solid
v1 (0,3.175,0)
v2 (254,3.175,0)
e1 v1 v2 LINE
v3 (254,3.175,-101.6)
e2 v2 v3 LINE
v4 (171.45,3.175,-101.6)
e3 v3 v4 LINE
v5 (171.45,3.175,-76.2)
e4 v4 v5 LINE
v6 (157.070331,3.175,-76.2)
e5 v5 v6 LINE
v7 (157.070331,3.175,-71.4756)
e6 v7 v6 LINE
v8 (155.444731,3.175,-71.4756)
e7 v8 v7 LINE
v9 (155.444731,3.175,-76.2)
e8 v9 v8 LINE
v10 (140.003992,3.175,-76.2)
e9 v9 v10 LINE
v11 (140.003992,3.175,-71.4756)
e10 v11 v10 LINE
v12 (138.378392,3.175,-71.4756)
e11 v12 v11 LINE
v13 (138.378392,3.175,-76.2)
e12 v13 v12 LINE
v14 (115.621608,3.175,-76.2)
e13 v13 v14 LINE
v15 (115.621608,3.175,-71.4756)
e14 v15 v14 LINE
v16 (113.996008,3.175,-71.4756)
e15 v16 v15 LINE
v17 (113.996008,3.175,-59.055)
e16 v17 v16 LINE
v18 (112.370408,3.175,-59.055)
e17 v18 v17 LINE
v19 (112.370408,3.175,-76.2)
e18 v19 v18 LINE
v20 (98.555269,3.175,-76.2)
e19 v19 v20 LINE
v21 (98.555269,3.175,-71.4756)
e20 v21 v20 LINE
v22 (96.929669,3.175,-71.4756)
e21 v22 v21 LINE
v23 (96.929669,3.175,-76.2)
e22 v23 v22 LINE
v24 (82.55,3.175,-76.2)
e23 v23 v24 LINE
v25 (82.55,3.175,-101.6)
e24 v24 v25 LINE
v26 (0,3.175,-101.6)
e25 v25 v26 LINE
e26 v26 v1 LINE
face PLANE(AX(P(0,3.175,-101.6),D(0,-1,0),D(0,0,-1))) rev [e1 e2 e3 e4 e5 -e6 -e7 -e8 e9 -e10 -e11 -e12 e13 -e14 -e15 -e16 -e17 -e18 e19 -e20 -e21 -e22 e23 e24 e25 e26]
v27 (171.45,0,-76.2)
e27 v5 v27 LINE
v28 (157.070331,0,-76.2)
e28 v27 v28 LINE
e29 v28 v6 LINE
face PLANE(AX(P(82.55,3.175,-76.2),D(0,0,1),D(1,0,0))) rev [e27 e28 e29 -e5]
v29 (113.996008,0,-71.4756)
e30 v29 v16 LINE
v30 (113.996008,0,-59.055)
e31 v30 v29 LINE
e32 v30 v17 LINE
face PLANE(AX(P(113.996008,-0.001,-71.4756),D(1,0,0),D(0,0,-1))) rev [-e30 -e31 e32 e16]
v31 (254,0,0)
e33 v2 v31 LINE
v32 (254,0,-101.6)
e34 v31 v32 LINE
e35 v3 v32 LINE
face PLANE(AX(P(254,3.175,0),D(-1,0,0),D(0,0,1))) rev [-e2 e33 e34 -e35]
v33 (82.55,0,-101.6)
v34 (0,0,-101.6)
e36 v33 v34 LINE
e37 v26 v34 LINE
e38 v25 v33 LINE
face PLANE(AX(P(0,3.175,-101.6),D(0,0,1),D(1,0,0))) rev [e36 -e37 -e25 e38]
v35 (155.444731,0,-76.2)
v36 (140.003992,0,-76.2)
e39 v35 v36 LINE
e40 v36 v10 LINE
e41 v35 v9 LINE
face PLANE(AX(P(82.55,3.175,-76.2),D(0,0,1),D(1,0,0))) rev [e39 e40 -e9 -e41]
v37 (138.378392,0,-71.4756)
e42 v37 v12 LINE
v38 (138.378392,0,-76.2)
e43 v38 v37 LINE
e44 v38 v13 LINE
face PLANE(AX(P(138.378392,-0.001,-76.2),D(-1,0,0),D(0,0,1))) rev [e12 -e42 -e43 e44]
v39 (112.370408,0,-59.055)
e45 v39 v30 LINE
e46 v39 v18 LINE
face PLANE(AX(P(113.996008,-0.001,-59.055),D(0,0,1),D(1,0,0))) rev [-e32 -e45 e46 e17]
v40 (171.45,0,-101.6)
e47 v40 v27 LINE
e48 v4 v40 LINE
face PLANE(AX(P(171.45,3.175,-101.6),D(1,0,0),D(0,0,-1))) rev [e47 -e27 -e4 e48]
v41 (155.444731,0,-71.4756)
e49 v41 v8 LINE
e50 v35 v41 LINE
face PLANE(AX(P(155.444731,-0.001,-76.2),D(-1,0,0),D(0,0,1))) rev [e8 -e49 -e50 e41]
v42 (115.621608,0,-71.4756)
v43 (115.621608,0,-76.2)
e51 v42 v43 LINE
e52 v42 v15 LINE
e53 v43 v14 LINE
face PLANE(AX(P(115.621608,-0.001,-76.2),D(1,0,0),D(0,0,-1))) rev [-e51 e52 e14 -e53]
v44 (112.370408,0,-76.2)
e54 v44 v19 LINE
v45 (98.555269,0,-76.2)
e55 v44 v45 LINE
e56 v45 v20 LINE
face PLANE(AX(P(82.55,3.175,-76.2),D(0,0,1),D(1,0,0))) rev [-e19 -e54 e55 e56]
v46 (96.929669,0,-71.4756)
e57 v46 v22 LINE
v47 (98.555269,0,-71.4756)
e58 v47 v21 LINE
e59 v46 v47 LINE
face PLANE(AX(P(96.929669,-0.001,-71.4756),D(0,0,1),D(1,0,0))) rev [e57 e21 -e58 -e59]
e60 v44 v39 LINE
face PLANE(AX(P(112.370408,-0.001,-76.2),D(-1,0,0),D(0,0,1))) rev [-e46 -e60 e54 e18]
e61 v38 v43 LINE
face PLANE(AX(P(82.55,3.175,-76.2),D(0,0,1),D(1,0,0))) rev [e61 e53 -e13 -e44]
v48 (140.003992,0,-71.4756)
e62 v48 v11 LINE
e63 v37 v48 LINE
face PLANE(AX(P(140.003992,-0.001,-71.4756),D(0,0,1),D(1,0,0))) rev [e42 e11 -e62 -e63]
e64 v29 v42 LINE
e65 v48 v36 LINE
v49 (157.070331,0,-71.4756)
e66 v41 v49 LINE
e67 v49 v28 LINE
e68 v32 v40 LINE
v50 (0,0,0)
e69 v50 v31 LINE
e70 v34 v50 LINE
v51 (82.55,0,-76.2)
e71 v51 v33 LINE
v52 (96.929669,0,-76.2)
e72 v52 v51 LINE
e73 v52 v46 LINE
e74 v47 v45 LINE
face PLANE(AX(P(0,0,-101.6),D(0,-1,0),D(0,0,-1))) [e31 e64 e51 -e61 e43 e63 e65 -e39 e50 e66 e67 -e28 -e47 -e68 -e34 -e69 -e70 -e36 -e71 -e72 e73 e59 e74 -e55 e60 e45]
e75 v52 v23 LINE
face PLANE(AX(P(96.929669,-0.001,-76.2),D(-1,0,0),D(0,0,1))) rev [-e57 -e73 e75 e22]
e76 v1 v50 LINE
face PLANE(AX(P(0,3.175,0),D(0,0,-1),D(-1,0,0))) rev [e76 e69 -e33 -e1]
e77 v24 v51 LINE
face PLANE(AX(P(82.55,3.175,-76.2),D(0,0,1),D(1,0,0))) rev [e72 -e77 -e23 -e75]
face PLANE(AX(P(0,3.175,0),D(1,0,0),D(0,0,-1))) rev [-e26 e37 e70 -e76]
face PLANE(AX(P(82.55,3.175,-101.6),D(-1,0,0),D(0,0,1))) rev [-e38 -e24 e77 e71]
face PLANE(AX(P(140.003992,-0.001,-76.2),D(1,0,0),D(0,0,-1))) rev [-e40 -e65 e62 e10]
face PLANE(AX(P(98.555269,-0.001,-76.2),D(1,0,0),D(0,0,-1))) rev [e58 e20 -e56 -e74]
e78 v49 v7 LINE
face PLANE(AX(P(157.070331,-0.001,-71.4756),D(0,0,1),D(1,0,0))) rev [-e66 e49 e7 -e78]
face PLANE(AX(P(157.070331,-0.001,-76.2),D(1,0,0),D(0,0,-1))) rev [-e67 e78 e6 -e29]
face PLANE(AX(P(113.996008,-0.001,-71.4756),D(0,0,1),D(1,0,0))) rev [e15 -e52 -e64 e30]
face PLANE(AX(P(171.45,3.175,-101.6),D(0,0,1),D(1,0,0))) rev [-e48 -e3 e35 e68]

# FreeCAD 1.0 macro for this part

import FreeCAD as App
import Part
import Sketcher

V = App.Vector
Q = App.Units.Quantity


def add_polygon(sketch, points):
    """Adds a closed chain of lines whose ends are joined by coincident constraints."""
    first, n = sketch.GeometryCount, len(points)
    for a, b in zip(points, points[1:] + points[:1]):
        sketch.addGeometry(Part.LineSegment(App.Vector(*a, 0), App.Vector(*b, 0)), False)
    for i in range(n):
        sketch.addConstraint(Sketcher.Constraint("Coincident", first + i, 2, first + (i + 1) % n, 1))

doc = App.newDocument("Part")
body = doc.addObject("PartDesign::Body", "Body")

# Sketch on XZ plane
sketch1 = body.newObject("Sketcher::SketchObject", "Sketch")
sketch1.AttachmentSupport = (doc.getObject("XZ_Plane"), [""])
sketch1.MapMode = "FlatFace"
add_polygon(sketch1, [(254, -101.6), (171.45, -101.6), (171.45, -76.2), (82.55, -76.2), (82.55, -101.6), (0, -101.6), (0, 0), (254, 0)])  # lines 0-7
sketch1.addConstraint(Sketcher.Constraint("Horizontal", 0))
sketch1.addConstraint(Sketcher.Constraint("Vertical", 1))
sketch1.addConstraint(Sketcher.Constraint("Horizontal", 2))
sketch1.addConstraint(Sketcher.Constraint("Vertical", 3))
sketch1.addConstraint(Sketcher.Constraint("Horizontal", 4))
sketch1.addConstraint(Sketcher.Constraint("Vertical", 5))
sketch1.addConstraint(Sketcher.Constraint("Horizontal", 6))
sketch1.addConstraint(Sketcher.Constraint("Vertical", 7))
sketch1.addConstraint(Sketcher.Constraint("Coincident", 5, 2, -1, 1))
sketch1.addConstraint(Sketcher.Constraint("Horizontal", 0, 2, 3, 2))
sketch1.addConstraint(Sketcher.Constraint("Equal", 0, 4))
sketch1.addConstraint(Sketcher.Constraint("DistanceX", 6, 1, 6, 2, Q("10 in")))
sketch1.addConstraint(Sketcher.Constraint("DistanceY", 1, 1, 1, 2, Q("1 in")))
sketch1.addConstraint(Sketcher.Constraint("DistanceY", 5, 1, 5, 2, Q("4 in")))
sketch1.addConstraint(Sketcher.Constraint("DistanceX", 2, 2, 2, 1, Q("3.5 in")))
pad1 = body.newObject("PartDesign::Pad", "Pad")
pad1.Profile = sketch1
pad1.Length = Q("0.125 in")
pad1.Reversed = True

# Sketch on XZ plane
sketch2 = body.newObject("Sketcher::SketchObject", "Sketch001")
sketch2.AttachmentSupport = (doc.getObject("XZ_Plane"), [""])
sketch2.MapMode = "FlatFace"
sketch2.AttachmentOffset = App.Placement(V(0, 0, -0.125 * 25.4), App.Rotation())
add_polygon(sketch2, [(98.555269, -71.4756), (98.555269, -76.2), (96.929669, -76.2), (96.929669, -71.4756)])  # lines 0-3
sketch2.addConstraint(Sketcher.Constraint("Vertical", 0))
sketch2.addConstraint(Sketcher.Constraint("Horizontal", 1))
sketch2.addConstraint(Sketcher.Constraint("Vertical", 2))
sketch2.addConstraint(Sketcher.Constraint("Horizontal", 3))
sketch2.addConstraint(Sketcher.Constraint("DistanceY", 0, 2, -1, 1, Q("3 in")))
sketch2.addConstraint(Sketcher.Constraint("DistanceX", 1, 2, 1, 1, Q("0.064 in")))
sketch2.addConstraint(Sketcher.Constraint("DistanceY", 0, 2, 0, 1, Q("0.186 in")))
sketch2.addConstraint(Sketcher.Constraint("DistanceX", -1, 1, 0, 2, Q("98.555269 mm")))
pocket1 = body.newObject("PartDesign::Pocket", "Pocket")
pocket1.Profile = sketch2
pocket1.Type = "UpToFirst"
pocket1.Reversed = True

# Sketch on XZ plane
sketch3 = body.newObject("Sketcher::SketchObject", "Sketch002")
sketch3.AttachmentSupport = (doc.getObject("XZ_Plane"), [""])
sketch3.MapMode = "FlatFace"
sketch3.AttachmentOffset = App.Placement(V(0, 0, -0.125 * 25.4), App.Rotation())
add_polygon(sketch3, [(115.621608, -76.2), (112.370408, -76.2), (112.370408, -59.055), (113.996008, -59.055), (113.996008, -71.4756), (115.621608, -71.4756)])  # lines 0-5
sketch3.addConstraint(Sketcher.Constraint("Horizontal", 0))
sketch3.addConstraint(Sketcher.Constraint("Vertical", 1))
sketch3.addConstraint(Sketcher.Constraint("Horizontal", 2))
sketch3.addConstraint(Sketcher.Constraint("Vertical", 3))
sketch3.addConstraint(Sketcher.Constraint("Horizontal", 4))
sketch3.addConstraint(Sketcher.Constraint("Vertical", 5))
sketch3.addConstraint(Sketcher.Constraint("Equal", 2, 4))
sketch3.addConstraint(Sketcher.Constraint("DistanceY", 0, 2, -1, 1, Q("3 in")))
sketch3.addConstraint(Sketcher.Constraint("DistanceX", 0, 2, 0, 1, Q("0.128 in")))
sketch3.addConstraint(Sketcher.Constraint("DistanceY", 1, 1, 1, 2, Q("0.675 in")))
sketch3.addConstraint(Sketcher.Constraint("DistanceY", 3, 2, 3, 1, Q("0.489 in")))
sketch3.addConstraint(Sketcher.Constraint("DistanceX", -1, 1, 0, 2, Q("112.370408 mm")))
pocket2 = body.newObject("PartDesign::Pocket", "Pocket001")
pocket2.Profile = sketch3
pocket2.Type = "UpToFirst"
pocket2.Reversed = True

# Sketch on XZ plane
sketch4 = body.newObject("Sketcher::SketchObject", "Sketch003")
sketch4.AttachmentSupport = (doc.getObject("XZ_Plane"), [""])
sketch4.MapMode = "FlatFace"
sketch4.AttachmentOffset = App.Placement(V(0, 0, -0.125 * 25.4), App.Rotation())
add_polygon(sketch4, [(140.003992, -71.4756), (140.003992, -76.2), (138.378392, -76.2), (138.378392, -71.4756)])  # lines 0-3
sketch4.addConstraint(Sketcher.Constraint("Vertical", 0))
sketch4.addConstraint(Sketcher.Constraint("Horizontal", 1))
sketch4.addConstraint(Sketcher.Constraint("Vertical", 2))
sketch4.addConstraint(Sketcher.Constraint("Horizontal", 3))
sketch4.addConstraint(Sketcher.Constraint("DistanceY", 0, 2, -1, 1, Q("3 in")))
sketch4.addConstraint(Sketcher.Constraint("DistanceX", 1, 2, 1, 1, Q("0.064 in")))
sketch4.addConstraint(Sketcher.Constraint("DistanceY", 0, 2, 0, 1, Q("0.186 in")))
sketch4.addConstraint(Sketcher.Constraint("DistanceX", -1, 1, 0, 2, Q("140.003992 mm")))
pocket3 = body.newObject("PartDesign::Pocket", "Pocket002")
pocket3.Profile = sketch4
pocket3.Type = "UpToFirst"
pocket3.Reversed = True

# Sketch on XZ plane
sketch5 = body.newObject("Sketcher::SketchObject", "Sketch004")
sketch5.AttachmentSupport = (doc.getObject("XZ_Plane"), [""])
sketch5.MapMode = "FlatFace"
sketch5.AttachmentOffset = App.Placement(V(0, 0, -0.125 * 25.4), App.Rotation())
add_polygon(sketch5, [(157.070331, -71.4756), (157.070331, -76.2), (155.444731, -76.2), (155.444731, -71.4756)])  # lines 0-3
sketch5.addConstraint(Sketcher.Constraint("Vertical", 0))
sketch5.addConstraint(Sketcher.Constraint("Horizontal", 1))
sketch5.addConstraint(Sketcher.Constraint("Vertical", 2))
sketch5.addConstraint(Sketcher.Constraint("Horizontal", 3))
sketch5.addConstraint(Sketcher.Constraint("DistanceY", 0, 2, -1, 1, Q("3 in")))
sketch5.addConstraint(Sketcher.Constraint("DistanceX", 1, 2, 1, 1, Q("0.064 in")))
sketch5.addConstraint(Sketcher.Constraint("DistanceY", 0, 2, 0, 1, Q("0.186 in")))
sketch5.addConstraint(Sketcher.Constraint("DistanceX", -1, 1, 0, 2, Q("157.070331 mm")))
pocket4 = body.newObject("PartDesign::Pocket", "Pocket003")
pocket4.Profile = sketch5
pocket4.Type = "UpToFirst"
pocket4.Reversed = True

doc.recompute()
